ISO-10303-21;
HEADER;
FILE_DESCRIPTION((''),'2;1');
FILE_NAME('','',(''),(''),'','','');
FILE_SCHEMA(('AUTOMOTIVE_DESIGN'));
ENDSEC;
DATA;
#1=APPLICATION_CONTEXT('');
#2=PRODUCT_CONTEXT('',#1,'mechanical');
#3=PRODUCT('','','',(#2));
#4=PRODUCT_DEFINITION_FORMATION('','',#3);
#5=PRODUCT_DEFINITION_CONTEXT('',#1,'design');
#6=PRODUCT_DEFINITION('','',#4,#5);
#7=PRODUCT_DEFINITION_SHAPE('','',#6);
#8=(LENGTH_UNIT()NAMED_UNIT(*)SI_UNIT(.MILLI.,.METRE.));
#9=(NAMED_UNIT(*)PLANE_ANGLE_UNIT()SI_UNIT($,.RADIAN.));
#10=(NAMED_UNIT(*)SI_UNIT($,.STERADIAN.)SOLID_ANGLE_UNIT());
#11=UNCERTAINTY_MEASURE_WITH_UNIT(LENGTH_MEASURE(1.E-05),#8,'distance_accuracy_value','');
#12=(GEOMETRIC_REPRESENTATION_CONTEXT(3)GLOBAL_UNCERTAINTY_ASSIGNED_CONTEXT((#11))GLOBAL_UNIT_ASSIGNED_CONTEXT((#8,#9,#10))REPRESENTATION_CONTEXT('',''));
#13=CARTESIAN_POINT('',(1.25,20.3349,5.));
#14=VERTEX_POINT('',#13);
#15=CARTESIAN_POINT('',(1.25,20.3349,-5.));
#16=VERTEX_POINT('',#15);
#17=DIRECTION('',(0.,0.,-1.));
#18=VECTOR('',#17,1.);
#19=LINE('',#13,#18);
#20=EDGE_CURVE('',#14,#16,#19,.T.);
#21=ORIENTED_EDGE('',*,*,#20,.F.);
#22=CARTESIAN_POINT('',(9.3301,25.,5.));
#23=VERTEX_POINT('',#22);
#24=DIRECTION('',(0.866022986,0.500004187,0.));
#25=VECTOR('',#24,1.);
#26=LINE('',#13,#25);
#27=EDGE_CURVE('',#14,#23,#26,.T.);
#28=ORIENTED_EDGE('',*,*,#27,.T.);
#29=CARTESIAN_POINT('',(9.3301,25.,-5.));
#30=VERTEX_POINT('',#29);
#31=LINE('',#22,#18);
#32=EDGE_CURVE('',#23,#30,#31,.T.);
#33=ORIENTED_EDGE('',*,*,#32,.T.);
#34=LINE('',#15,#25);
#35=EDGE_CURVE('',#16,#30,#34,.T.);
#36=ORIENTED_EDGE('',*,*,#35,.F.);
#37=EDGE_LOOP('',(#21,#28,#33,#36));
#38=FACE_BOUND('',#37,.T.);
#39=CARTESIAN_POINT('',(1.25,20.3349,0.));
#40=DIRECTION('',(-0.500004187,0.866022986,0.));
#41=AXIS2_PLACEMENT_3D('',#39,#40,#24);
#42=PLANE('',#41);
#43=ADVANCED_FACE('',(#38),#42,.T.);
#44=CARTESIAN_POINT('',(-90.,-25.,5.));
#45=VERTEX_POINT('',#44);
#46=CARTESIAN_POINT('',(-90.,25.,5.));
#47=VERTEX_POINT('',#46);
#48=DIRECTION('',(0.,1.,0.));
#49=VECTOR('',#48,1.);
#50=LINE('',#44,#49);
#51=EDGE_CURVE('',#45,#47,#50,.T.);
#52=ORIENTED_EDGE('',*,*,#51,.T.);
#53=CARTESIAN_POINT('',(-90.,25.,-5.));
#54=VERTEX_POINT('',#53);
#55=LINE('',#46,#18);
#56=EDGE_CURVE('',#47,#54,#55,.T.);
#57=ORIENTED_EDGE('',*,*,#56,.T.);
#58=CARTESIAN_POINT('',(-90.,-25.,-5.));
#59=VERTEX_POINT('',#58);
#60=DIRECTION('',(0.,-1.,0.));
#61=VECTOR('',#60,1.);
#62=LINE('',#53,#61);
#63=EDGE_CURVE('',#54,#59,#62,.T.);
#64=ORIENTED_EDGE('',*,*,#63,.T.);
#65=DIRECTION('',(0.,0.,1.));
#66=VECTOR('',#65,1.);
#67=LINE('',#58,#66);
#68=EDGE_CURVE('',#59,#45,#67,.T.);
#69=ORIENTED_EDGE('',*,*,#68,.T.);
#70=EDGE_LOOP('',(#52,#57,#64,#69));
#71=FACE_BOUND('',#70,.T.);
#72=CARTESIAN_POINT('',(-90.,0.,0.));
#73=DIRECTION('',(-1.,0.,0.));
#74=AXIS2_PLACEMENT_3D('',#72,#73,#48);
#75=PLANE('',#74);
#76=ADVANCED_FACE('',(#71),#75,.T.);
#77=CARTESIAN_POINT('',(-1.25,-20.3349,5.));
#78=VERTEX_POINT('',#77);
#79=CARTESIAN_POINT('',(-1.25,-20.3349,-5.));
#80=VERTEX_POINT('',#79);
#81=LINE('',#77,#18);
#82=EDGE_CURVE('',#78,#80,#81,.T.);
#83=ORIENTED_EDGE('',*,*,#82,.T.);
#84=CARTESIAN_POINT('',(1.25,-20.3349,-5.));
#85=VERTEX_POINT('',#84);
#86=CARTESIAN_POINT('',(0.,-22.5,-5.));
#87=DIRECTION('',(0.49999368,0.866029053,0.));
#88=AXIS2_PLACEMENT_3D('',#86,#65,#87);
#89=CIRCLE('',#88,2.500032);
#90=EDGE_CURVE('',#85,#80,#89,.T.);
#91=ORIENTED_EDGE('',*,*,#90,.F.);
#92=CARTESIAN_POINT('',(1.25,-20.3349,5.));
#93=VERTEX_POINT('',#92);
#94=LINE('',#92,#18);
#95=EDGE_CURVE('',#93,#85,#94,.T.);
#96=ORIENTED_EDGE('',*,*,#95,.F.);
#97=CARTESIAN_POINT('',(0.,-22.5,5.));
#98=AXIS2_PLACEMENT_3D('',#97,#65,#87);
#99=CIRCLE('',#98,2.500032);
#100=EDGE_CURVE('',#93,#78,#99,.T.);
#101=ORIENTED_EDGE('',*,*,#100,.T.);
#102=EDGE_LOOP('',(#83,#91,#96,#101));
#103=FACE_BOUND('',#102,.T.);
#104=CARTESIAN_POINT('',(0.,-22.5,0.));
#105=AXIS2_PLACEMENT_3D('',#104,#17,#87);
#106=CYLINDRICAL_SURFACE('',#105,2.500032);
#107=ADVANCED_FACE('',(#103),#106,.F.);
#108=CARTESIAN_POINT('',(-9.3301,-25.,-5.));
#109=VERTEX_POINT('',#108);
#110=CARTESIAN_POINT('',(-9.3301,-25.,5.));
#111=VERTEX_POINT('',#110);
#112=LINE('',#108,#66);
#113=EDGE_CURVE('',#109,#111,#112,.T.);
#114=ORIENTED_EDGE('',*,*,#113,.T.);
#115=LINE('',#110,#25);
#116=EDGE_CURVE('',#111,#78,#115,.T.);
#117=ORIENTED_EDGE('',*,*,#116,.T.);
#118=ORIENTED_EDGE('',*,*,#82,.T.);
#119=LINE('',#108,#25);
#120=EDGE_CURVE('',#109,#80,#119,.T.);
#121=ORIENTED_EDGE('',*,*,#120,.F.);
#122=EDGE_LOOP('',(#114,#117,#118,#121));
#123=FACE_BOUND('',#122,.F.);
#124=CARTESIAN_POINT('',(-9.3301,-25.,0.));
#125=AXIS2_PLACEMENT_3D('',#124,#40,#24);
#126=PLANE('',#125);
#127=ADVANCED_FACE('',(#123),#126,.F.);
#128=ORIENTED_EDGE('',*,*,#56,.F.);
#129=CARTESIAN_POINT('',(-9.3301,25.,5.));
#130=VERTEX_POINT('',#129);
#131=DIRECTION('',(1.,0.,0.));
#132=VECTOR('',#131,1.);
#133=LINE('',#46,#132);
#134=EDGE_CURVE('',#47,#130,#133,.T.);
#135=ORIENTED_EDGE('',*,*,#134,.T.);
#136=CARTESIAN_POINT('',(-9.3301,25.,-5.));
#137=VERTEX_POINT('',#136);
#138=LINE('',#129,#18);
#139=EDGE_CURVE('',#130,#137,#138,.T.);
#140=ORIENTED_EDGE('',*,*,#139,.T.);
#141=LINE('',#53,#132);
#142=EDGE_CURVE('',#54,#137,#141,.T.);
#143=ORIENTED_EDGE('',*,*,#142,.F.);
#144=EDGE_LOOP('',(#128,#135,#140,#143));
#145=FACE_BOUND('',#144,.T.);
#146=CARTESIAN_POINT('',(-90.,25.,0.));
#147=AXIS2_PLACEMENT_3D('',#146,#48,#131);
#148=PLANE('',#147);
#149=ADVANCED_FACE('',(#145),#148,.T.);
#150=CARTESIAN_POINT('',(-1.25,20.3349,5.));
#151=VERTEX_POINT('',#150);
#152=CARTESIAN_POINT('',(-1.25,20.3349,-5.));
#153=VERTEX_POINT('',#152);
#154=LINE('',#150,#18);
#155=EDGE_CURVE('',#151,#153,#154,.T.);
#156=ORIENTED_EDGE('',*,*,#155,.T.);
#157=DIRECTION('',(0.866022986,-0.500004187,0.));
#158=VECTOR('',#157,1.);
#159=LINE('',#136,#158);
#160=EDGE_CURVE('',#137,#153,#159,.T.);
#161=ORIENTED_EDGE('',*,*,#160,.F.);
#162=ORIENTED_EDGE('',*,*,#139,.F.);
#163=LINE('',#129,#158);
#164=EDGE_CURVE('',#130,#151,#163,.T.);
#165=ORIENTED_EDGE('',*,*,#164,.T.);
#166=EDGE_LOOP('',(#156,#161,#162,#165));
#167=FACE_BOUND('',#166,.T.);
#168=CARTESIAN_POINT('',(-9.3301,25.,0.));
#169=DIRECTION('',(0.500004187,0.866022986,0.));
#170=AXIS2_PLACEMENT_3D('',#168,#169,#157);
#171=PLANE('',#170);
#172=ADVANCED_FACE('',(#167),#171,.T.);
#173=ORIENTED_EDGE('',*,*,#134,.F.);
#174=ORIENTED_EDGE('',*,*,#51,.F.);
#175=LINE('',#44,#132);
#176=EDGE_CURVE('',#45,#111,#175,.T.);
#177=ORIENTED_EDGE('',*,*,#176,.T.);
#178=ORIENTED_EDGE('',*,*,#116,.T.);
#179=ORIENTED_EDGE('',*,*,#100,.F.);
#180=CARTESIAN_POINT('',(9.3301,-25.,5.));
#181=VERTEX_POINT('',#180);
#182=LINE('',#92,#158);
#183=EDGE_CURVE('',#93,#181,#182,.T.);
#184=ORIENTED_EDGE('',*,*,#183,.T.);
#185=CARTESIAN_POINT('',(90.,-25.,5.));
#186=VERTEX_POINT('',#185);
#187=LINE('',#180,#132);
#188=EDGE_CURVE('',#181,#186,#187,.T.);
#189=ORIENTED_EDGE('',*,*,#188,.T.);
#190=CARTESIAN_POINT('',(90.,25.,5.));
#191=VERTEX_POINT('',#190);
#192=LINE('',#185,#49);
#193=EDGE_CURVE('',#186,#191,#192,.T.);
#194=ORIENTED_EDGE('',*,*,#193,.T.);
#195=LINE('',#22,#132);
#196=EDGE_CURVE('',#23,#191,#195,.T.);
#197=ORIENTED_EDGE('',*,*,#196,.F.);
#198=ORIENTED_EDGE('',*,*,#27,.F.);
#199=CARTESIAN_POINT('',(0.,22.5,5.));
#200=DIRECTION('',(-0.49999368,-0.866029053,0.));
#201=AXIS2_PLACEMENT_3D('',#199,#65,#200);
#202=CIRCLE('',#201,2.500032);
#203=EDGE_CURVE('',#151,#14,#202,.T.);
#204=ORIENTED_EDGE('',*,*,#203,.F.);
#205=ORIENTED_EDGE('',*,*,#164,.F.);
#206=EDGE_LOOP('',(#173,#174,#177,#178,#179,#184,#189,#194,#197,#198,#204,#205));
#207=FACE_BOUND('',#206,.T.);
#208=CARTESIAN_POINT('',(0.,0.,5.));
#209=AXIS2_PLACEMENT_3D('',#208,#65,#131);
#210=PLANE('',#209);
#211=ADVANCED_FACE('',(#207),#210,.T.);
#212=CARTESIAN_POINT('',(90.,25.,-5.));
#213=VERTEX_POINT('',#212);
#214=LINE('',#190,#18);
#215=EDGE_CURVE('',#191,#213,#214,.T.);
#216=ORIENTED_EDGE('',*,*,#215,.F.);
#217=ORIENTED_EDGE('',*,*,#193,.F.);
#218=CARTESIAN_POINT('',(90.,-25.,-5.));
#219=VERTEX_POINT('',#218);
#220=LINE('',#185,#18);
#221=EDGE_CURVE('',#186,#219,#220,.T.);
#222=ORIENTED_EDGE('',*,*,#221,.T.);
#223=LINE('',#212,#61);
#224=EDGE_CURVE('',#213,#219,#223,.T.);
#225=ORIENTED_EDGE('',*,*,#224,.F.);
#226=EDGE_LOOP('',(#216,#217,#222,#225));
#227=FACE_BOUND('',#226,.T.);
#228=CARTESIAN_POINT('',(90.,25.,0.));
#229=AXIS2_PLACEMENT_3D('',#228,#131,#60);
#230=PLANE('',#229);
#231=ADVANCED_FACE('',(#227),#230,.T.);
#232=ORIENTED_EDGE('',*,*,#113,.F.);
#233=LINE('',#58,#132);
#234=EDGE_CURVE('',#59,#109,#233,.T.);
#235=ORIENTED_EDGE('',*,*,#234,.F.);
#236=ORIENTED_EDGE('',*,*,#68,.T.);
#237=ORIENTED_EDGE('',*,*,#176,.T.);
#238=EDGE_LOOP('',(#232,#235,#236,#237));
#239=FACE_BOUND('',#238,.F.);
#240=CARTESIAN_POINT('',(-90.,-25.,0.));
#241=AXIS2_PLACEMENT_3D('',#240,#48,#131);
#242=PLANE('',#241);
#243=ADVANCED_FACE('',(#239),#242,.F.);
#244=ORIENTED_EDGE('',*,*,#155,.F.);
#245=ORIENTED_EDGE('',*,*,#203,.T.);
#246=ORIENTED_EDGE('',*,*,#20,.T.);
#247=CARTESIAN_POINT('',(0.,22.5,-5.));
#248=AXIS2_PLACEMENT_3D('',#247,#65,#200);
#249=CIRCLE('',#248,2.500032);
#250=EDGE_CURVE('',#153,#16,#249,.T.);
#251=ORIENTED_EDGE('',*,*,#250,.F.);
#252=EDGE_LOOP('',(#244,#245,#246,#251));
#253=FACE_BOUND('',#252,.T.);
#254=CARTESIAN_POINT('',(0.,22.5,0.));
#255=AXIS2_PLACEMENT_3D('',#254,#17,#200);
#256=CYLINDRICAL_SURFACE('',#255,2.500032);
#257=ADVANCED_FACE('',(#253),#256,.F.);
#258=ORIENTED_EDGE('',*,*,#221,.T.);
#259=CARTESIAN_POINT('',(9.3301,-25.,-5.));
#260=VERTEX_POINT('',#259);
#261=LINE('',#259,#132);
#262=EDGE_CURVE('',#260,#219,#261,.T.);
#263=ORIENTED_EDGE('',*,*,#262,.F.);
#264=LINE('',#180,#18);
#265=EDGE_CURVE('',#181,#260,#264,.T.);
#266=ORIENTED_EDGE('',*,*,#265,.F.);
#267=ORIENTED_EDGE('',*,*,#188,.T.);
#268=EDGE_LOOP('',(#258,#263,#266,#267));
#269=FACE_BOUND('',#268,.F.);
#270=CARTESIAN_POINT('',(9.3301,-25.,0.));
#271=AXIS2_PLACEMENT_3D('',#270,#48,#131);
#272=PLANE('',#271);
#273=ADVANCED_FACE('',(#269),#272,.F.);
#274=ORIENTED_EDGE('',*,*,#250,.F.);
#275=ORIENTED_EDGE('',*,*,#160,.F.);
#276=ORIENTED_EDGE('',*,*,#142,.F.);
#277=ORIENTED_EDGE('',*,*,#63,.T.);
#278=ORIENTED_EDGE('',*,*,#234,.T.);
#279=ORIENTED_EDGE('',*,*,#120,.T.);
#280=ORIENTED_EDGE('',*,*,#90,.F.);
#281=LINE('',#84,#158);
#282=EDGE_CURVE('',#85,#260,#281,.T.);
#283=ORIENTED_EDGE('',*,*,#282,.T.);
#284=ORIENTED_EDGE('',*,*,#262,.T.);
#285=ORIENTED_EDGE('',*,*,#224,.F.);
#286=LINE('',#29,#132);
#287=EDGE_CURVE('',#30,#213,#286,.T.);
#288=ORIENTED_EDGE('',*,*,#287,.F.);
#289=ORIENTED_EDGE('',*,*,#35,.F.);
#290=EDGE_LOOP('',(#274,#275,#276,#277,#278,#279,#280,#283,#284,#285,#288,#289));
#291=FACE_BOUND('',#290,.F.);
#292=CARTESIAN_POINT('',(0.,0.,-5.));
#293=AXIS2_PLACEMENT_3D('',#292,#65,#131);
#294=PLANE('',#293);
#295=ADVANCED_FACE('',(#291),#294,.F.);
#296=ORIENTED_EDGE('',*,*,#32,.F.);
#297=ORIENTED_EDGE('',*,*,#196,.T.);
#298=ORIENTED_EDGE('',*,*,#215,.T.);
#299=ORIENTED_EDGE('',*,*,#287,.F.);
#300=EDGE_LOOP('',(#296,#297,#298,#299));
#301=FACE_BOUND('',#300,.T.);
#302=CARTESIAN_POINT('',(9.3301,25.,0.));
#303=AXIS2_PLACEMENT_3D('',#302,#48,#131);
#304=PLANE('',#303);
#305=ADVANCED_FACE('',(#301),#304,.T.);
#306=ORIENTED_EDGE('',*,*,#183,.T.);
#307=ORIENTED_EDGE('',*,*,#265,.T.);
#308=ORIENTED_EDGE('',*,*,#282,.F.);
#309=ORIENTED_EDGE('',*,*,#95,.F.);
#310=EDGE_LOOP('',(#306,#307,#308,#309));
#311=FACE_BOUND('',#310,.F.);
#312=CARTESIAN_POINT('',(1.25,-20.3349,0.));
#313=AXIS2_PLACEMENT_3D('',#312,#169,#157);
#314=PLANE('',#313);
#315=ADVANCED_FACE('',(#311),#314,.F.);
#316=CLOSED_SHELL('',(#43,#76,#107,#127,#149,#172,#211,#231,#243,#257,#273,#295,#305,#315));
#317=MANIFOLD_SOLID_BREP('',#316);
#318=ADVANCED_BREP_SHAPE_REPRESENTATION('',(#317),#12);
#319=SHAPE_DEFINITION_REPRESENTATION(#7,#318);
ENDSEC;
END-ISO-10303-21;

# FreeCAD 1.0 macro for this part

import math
import FreeCAD as App
import Part
import Sketcher
from FreeCAD import Vector

doc = App.newDocument("Part")
body = doc.addObject("PartDesign::Body", "Body")

# Sketch on XY plane
sketch1 = body.newObject("Sketcher::SketchObject", "Sketch")
sketch1.AttachmentSupport = (doc.getObject("XY_Plane"), [""])
sketch1.MapMode = "FlatFace"
sketch1.addGeometry(Part.LineSegment(Vector(-90, 25, 0), Vector(-90, -25, 0)), False)
sketch1.addGeometry(Part.LineSegment(Vector(-90, -25, 0), Vector(-9.3, -25, 0)), False)
sketch1.addGeometry(Part.LineSegment(Vector(-9.3, -25, 0), Vector(-1.2, -20.3, 0)), False)
sketch1.addGeometry(Part.ArcOfCircle(Part.Circle(Vector(0, -22.5, 0), Vector(0, 0, 1), 2.5), math.radians(60), math.radians(120)), False)
sketch1.addGeometry(Part.LineSegment(Vector(1.2, -20.3, 0), Vector(9.3, -25, 0)), False)
sketch1.addGeometry(Part.LineSegment(Vector(9.3, -25, 0), Vector(90, -25, 0)), False)
sketch1.addGeometry(Part.LineSegment(Vector(90, -25, 0), Vector(90, 25, 0)), False)
sketch1.addGeometry(Part.LineSegment(Vector(90, 25, 0), Vector(9.3, 25, 0)), False)
sketch1.addGeometry(Part.LineSegment(Vector(9.3, 25, 0), Vector(1.2, 20.3, 0)), False)
sketch1.addGeometry(Part.ArcOfCircle(Part.Circle(Vector(0, 22.5, 0), Vector(0, 0, 1), 2.5), math.radians(-120), math.radians(-60)), False)
sketch1.addGeometry(Part.LineSegment(Vector(-1.2, 20.3, 0), Vector(-9.3, 25, 0)), False)
sketch1.addGeometry(Part.LineSegment(Vector(-9.3, 25, 0), Vector(-90, 25, 0)), False)
sketch1.addConstraint(Sketcher.Constraint("Coincident", 0, 2, 1, 1))
sketch1.addConstraint(Sketcher.Constraint("Coincident", 1, 2, 2, 1))
sketch1.addConstraint(Sketcher.Constraint("Tangent", 2, 2, 3, 2))
sketch1.addConstraint(Sketcher.Constraint("Tangent", 3, 1, 4, 1))
sketch1.addConstraint(Sketcher.Constraint("Coincident", 4, 2, 5, 1))
sketch1.addConstraint(Sketcher.Constraint("Coincident", 5, 2, 6, 1))
sketch1.addConstraint(Sketcher.Constraint("Coincident", 6, 2, 7, 1))
sketch1.addConstraint(Sketcher.Constraint("Coincident", 7, 2, 8, 1))
sketch1.addConstraint(Sketcher.Constraint("Tangent", 8, 2, 9, 2))
sketch1.addConstraint(Sketcher.Constraint("Tangent", 9, 1, 10, 1))
sketch1.addConstraint(Sketcher.Constraint("Coincident", 10, 2, 11, 1))
sketch1.addConstraint(Sketcher.Constraint("Coincident", 11, 2, 0, 1))
sketch1.addConstraint(Sketcher.Constraint("Vertical", 0))
sketch1.addConstraint(Sketcher.Constraint("Horizontal", 1))
sketch1.addConstraint(Sketcher.Constraint("Horizontal", 5))
sketch1.addConstraint(Sketcher.Constraint("Vertical", 6))
sketch1.addConstraint(Sketcher.Constraint("Horizontal", 7))
sketch1.addConstraint(Sketcher.Constraint("Horizontal", 11))
sketch1.addConstraint(Sketcher.Constraint("Equal", 3, 9))
sketch1.addConstraint(Sketcher.Constraint("Symmetric", 3, 3, 9, 3, -1, 1))
sketch1.addConstraint(Sketcher.Constraint("Symmetric", 0, 2, 6, 2, -1, 1))
sketch1.addConstraint(Sketcher.Constraint("Symmetric", 4, 2, 10, 2, -1, 1))
sketch1.addConstraint(Sketcher.Constraint("Symmetric", 2, 2, 3, 1, -2))
sketch1.addConstraint(Sketcher.Constraint("Symmetric", 7, 2, 10, 2, -2))
sketch1.addConstraint(Sketcher.Constraint("Radius", 3, 2.5))
sketch1.addConstraint(Sketcher.Constraint("DistanceY", 0, 2, 0, 1, 50.0))
sketch1.addConstraint(Sketcher.Constraint("DistanceY", 0, 2, 3, 3, 2.5))
sketch1.addConstraint(Sketcher.Constraint("DistanceX", 2, 2, 3, 1, 2.5))
sketch1.addConstraint(Sketcher.Constraint("DistanceX", 0, 2, -1, 1, 90.0))
pad1 = body.newObject("PartDesign::Pad", "Pad")
pad1.Profile = sketch1
pad1.Length = 10
pad1.Midplane = True

doc.recompute()
